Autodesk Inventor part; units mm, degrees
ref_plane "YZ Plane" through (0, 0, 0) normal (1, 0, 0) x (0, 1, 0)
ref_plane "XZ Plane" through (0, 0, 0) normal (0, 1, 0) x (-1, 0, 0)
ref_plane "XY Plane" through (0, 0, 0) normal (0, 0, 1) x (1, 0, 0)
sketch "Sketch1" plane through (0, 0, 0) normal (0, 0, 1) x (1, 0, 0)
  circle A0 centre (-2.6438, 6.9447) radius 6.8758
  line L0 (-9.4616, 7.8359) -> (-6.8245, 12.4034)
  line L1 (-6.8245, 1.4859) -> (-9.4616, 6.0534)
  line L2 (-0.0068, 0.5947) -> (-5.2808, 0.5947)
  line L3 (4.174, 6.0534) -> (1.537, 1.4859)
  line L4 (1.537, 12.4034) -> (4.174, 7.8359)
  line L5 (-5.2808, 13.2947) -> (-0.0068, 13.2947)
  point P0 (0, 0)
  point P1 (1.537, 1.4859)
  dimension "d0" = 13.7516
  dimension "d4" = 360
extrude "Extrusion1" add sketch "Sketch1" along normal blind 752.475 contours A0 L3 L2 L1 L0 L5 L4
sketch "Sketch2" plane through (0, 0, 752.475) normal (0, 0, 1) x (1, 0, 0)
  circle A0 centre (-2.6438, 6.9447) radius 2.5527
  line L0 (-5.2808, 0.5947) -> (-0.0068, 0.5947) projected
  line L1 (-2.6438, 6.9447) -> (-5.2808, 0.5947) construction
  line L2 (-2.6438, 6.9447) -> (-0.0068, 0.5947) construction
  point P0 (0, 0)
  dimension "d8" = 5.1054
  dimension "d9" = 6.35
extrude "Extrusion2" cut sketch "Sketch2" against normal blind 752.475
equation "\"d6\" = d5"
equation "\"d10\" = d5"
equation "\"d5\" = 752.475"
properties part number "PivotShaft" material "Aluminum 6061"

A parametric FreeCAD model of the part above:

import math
import FreeCAD as App
import Part
import Sketcher
Q = App.Units.Quantity

doc = App.newDocument("Part")
params = doc.addObject("Spreadsheet::Sheet", "Params")
for row, (alias, value) in enumerate([
    ("pad1_length", "29.625 in"),
    ("sketch2_diameter", "0.201 in"),
    ("pocket1_length", "29.625 in"),
], start=1):
    params.set(f"A{row}", alias)
    params.set(f"B{row}", "=" + value)
    params.setAlias(f"B{row}", alias)

body = doc.addObject("PartDesign::Body", "Body")

# Sketch on XY plane
sketch1 = body.newObject("Sketcher::SketchObject", "Sketch")
sketch1.AttachmentSupport = (doc.getObject("XY_Plane"), [""])
sketch1.MapMode = "FlatFace"
sketch1.addGeometry([
    Part.ArcOfCircle(Part.Circle(App.Vector(-2.6, 6.9, 0), App.Vector(0, 0, 1), 6.9), math.radians(-7.45), math.radians(7.45)),  # 0
    Part.LineSegment(App.Vector(4.2, 7.8, 0), App.Vector(1.5, 12.4, 0)),  # 1
    Part.ArcOfCircle(Part.Circle(App.Vector(-2.6, 6.9, 0), App.Vector(0, 0, 1), 6.9), math.radians(52.55), math.radians(67.45)),  # 2
    Part.LineSegment(App.Vector(0, 13.3, 0), App.Vector(-5.3, 13.3, 0)),  # 3
    Part.ArcOfCircle(Part.Circle(App.Vector(-2.6, 6.9, 0), App.Vector(0, 0, 1), 6.9), math.radians(112.55), math.radians(127.45)),  # 4
    Part.LineSegment(App.Vector(-6.8, 12.4, 0), App.Vector(-9.5, 7.8, 0)),  # 5
    Part.ArcOfCircle(Part.Circle(App.Vector(-2.6, 6.9, 0), App.Vector(0, 0, 1), 6.9), math.radians(172.55), math.radians(187.45)),  # 6
    Part.LineSegment(App.Vector(-9.5, 6.1, 0), App.Vector(-6.8, 1.5, 0)),  # 7
    Part.ArcOfCircle(Part.Circle(App.Vector(-2.6, 6.9, 0), App.Vector(0, 0, 1), 6.9), math.radians(-127.45), math.radians(-112.55)),  # 8
    Part.LineSegment(App.Vector(-5.3, 0.6, 0), App.Vector(0, 0.6, 0)),  # 9
    Part.ArcOfCircle(Part.Circle(App.Vector(-2.6, 6.9, 0), App.Vector(0, 0, 1), 6.9), math.radians(-67.45), math.radians(-52.55)),  # 10
    Part.LineSegment(App.Vector(1.5, 1.5, 0), App.Vector(4.2, 6.1, 0)),  # 11
], False)
sketch1.addConstraint([
    Sketcher.Constraint("Coincident", 0, 2, 1, 1),
    Sketcher.Constraint("Coincident", 1, 2, 2, 1),
    Sketcher.Constraint("Coincident", 2, 2, 3, 1),
    Sketcher.Constraint("Coincident", 3, 2, 4, 1),
    Sketcher.Constraint("Coincident", 4, 2, 5, 1),
    Sketcher.Constraint("Coincident", 5, 2, 6, 1),
    Sketcher.Constraint("Coincident", 6, 2, 7, 1),
    Sketcher.Constraint("Coincident", 7, 2, 8, 1),
    Sketcher.Constraint("Coincident", 8, 2, 9, 1),
    Sketcher.Constraint("Coincident", 9, 2, 10, 1),
    Sketcher.Constraint("Coincident", 10, 2, 11, 1),
    Sketcher.Constraint("Coincident", 11, 2, 0, 1),
    Sketcher.Constraint("Horizontal", 3),
    Sketcher.Constraint("Horizontal", 9),
    Sketcher.Constraint("Coincident", 2, 3, 0, 3),
    Sketcher.Constraint("Coincident", 4, 3, 0, 3),
    Sketcher.Constraint("Coincident", 6, 3, 0, 3),
    Sketcher.Constraint("Coincident", 8, 3, 0, 3),
    Sketcher.Constraint("Coincident", 10, 3, 0, 3),
    Sketcher.Constraint("Equal", 0, 2),
    Sketcher.Constraint("Equal", 2, 4),
    Sketcher.Constraint("Equal", 4, 6),
    Sketcher.Constraint("Equal", 6, 8),
    Sketcher.Constraint("Equal", 8, 10),
    Sketcher.Constraint("Parallel", 1, 7),
    Sketcher.Constraint("Parallel", 5, 11),
    Sketcher.Constraint("Horizontal", 1, 2, 4, 2),
    Sketcher.Constraint("Horizontal", 0, 2, 5, 2),
    Sketcher.Constraint("Horizontal", 7, 2, 10, 2),
    Sketcher.Constraint("Vertical", 5, 2, 6, 2),
    Sketcher.Constraint("Vertical", 3, 2, 8, 2),
    Sketcher.Constraint("Radius", 0, Q("0.2707 in")),
    Sketcher.Constraint("Angle", 1, Q("119.9996 deg")),
    Sketcher.Constraint("DistanceY", 0, 3, 2, 2, Q("0.25 in")),
    Sketcher.Constraint("DistanceY", 10, 2, 0, 2, Q("0.25 in")),
    Sketcher.Constraint("DistanceY", -1, 1, 0, 2, Q("0.3085 in")),
    Sketcher.Constraint("DistanceX", -1, 1, 1, 2, Q("0.0605 in")),
])
pad1 = body.newObject("PartDesign::Pad", "Pad")
pad1.Profile = sketch1
pad1.setExpression("Length", "Params.pad1_length")

# Sketch on XY plane
sketch2 = body.newObject("Sketcher::SketchObject", "Sketch001")
sketch2.AttachmentSupport = (doc.getObject("XY_Plane"), [""])
sketch2.MapMode = "FlatFace"
sketch2.AttachmentOffset = App.Placement(App.Vector(0, 0, 29.625 * 25.4), App.Rotation())
sketch2.addGeometry(Part.Circle(App.Vector(-2.6, 6.9, 0), App.Vector(0, 0, 1), 2.6), False)
sketch2.addConstraint([
    Sketcher.Constraint("Diameter", 0, Q("0.201 in")),
    Sketcher.Constraint("DistanceX", 0, 3, -1, 1, Q("2.6438 mm")),
    Sketcher.Constraint("DistanceY", -1, 1, 0, 3, Q("6.9447 mm")),
])
sketch2.setExpression("Constraints[0]", "Params.sketch2_diameter")
pocket1 = body.newObject("PartDesign::Pocket", "Pocket")
pocket1.Profile = sketch2
pocket1.setExpression("Length", "Params.pocket1_length")

doc.recompute()
